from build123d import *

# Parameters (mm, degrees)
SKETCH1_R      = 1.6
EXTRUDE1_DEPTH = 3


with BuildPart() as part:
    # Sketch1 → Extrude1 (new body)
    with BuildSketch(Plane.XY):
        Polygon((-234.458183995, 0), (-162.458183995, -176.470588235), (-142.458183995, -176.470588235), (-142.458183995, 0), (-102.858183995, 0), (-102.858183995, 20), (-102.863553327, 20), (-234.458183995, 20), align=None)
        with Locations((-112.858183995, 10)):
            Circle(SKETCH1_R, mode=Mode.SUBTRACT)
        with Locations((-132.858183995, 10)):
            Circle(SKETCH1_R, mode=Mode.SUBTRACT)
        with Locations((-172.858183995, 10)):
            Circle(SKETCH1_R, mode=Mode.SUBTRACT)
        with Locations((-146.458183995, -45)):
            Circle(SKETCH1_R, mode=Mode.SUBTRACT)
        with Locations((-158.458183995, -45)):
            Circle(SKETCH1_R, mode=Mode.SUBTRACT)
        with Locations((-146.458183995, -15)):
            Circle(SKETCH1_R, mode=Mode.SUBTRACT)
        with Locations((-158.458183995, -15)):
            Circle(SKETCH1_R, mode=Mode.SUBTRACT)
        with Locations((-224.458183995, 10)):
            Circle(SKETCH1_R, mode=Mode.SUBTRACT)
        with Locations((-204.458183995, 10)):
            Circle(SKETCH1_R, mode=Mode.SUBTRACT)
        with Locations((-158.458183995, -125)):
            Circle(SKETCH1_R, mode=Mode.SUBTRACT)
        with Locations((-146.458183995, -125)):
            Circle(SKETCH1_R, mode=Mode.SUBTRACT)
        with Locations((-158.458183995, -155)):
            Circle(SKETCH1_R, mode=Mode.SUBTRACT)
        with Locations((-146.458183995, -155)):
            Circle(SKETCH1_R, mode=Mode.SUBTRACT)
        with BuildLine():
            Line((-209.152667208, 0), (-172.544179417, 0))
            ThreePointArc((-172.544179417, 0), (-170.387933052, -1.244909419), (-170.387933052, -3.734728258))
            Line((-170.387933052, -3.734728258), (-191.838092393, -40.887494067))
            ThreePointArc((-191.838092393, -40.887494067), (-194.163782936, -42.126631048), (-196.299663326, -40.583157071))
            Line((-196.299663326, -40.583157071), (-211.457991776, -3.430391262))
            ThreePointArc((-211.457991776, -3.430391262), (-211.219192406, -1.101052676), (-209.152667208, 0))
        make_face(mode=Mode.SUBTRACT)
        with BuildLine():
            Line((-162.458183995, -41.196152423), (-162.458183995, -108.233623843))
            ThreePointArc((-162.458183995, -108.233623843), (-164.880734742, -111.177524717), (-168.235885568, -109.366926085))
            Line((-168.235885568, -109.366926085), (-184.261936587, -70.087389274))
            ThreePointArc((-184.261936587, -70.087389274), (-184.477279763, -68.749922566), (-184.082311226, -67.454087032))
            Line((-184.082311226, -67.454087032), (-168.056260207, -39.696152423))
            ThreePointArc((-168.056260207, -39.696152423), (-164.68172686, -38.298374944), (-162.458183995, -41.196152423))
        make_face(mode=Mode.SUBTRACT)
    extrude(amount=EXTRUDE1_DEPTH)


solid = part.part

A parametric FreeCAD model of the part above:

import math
import FreeCAD as App
import Part
import Sketcher
from FreeCAD import Vector
Q = App.Units.Quantity

doc = App.newDocument("Part")
params = doc.addObject("Spreadsheet::Sheet", "Params")
for row, (alias, value) in enumerate([
    ("sketch1_radius", "3 mm"),
    ("sketch1_diameter", "3.2 mm"),
    ("sketch1_width", "20 mm"),
    ("sketch1_width2", "39.6 mm"),
    ("sketch1_width3", "131.6 mm"),
    ("pad1_length", "3 mm"),
], start=1):
    params.set(f"A{row}", alias)
    params.set(f"B{row}", "=" + value)
    params.setAlias(f"B{row}", alias)

body = doc.addObject("PartDesign::Body", "Body")

sketch1 = doc.addObject("Sketcher::SketchObject", "Sketch")
body.addObject(sketch1)
sketch1.AttachmentSupport = (doc.XY_Plane, [""])
sketch1.MapMode = "FlatFace"
sketch1.addGeometry([
    Part.LineSegment(Vector(-234.458184, 0, 0), Vector(-162.458184, -176.470588, 0)),
    Part.LineSegment(Vector(-162.458184, -176.470588, 0), Vector(-142.458184, -176.470588, 0)),
    Part.LineSegment(Vector(-142.458184, -176.470588, 0), Vector(-142.458184, 0, 0)),
    Part.LineSegment(Vector(-142.458184, 0, 0), Vector(-102.858184, 0, 0)),
    Part.LineSegment(Vector(-102.858184, 0, 0), Vector(-102.858184, 20, 0)),
    Part.LineSegment(Vector(-102.858184, 20, 0), Vector(-234.458184, 20, 0)),
    Part.LineSegment(Vector(-234.458184, 20, 0), Vector(-234.458184, 0, 0)),
    Part.ArcOfCircle(Part.Circle(Vector(-165.458184, -41.196152, 0), Vector(0, 0, 1), 3), math.radians(0), math.radians(150)),
    Part.LineSegment(Vector(-162.458184, -41.196152, 0), Vector(-162.458184, -108.233624, 0)),
    Part.ArcOfCircle(Part.Circle(Vector(-165.458184, -108.233624, 0), Vector(0, 0, 1), 3), math.radians(-157.80454), math.radians(0)),
    Part.LineSegment(Vector(-168.235886, -109.366926, 0), Vector(-184.261937, -70.087389, 0)),
    Part.ArcOfCircle(Part.Circle(Vector(-181.484235, -68.954087, 0), Vector(0, 0, 1), 3), math.radians(150), math.radians(202.195459)),
    Part.LineSegment(Vector(-184.082311, -67.454087, 0), Vector(-168.05626, -39.696152, 0)),
    Part.Circle(Vector(-158.458184, -155, 0), Vector(0, 0, 1), 1.6),
    Part.Circle(Vector(-146.458184, -155, 0), Vector(0, 0, 1), 1.6),
    Part.Circle(Vector(-158.458184, -125, 0), Vector(0, 0, 1), 1.6),
    Part.Circle(Vector(-146.458184, -125, 0), Vector(0, 0, 1), 1.6),
    Part.Circle(Vector(-224.458184, 10, 0), Vector(0, 0, 1), 1.6),
    Part.Circle(Vector(-204.458184, 10, 0), Vector(0, 0, 1), 1.6),
    Part.ArcOfCircle(Part.Circle(Vector(-209.152667, -2.489819, 0), Vector(0, 0, 1), 2.489819), math.radians(90), math.radians(202.19546)),
    Part.LineSegment(Vector(-209.152667, 0, 0), Vector(-172.544179, 0, 0)),
    Part.ArcOfCircle(Part.Circle(Vector(-172.544179, -2.489819, 0), Vector(0, 0, 1), 2.489819), math.radians(-30), math.radians(90)),
    Part.LineSegment(Vector(-170.387933, -3.734728, 0), Vector(-191.838092, -40.887494, 0)),
    Part.ArcOfCircle(Part.Circle(Vector(-193.994339, -39.642585, 0), Vector(0, 0, 1), 2.489819), math.radians(-157.80454), math.radians(-30)),
    Part.LineSegment(Vector(-196.299663, -40.583157, 0), Vector(-211.457992, -3.430391, 0)),
    Part.Circle(Vector(-172.858184, 10, 0), Vector(0, 0, 1), 1.6),
    Part.Circle(Vector(-158.458184, -45, 0), Vector(0, 0, 1), 1.6),
    Part.Circle(Vector(-146.458184, -45, 0), Vector(0, 0, 1), 1.6),
    Part.Circle(Vector(-158.458184, -15, 0), Vector(0, 0, 1), 1.6),
    Part.Circle(Vector(-146.458184, -15, 0), Vector(0, 0, 1), 1.6),
    Part.Circle(Vector(-132.858184, 10, 0), Vector(0, 0, 1), 1.6),
    Part.Circle(Vector(-112.858184, 10, 0), Vector(0, 0, 1), 1.6),
], False)
sketch1.addConstraint([
    Sketcher.Constraint("Coincident", 0, 2, 1, 1),
    Sketcher.Constraint("Coincident", 1, 2, 2, 1),
    Sketcher.Constraint("Coincident", 2, 2, 3, 1),
    Sketcher.Constraint("Coincident", 3, 2, 4, 1),
    Sketcher.Constraint("Coincident", 4, 2, 5, 1),
    Sketcher.Constraint("Coincident", 5, 2, 6, 1),
    Sketcher.Constraint("Coincident", 6, 2, 0, 1),
    Sketcher.Constraint("Tangent", 7, 1, 8, 1),
    Sketcher.Constraint("Tangent", 8, 2, 9, 2),
    Sketcher.Constraint("Tangent", 9, 1, 10, 1),
    Sketcher.Constraint("Tangent", 10, 2, 11, 2),
    Sketcher.Constraint("Tangent", 11, 1, 12, 1),
    Sketcher.Constraint("Tangent", 12, 2, 7, 2),
    Sketcher.Constraint("Tangent", 19, 1, 20, 1),
    Sketcher.Constraint("Tangent", 20, 2, 21, 2),
    Sketcher.Constraint("Tangent", 21, 1, 22, 1),
    Sketcher.Constraint("Tangent", 22, 2, 23, 2),
    Sketcher.Constraint("Tangent", 23, 1, 24, 1),
    Sketcher.Constraint("Tangent", 24, 2, 19, 2),
    Sketcher.Constraint("Horizontal", 1),
    Sketcher.Constraint("Vertical", 2),
    Sketcher.Constraint("Horizontal", 3),
    Sketcher.Constraint("Vertical", 4),
    Sketcher.Constraint("Horizontal", 5),
    Sketcher.Constraint("Vertical", 6),
    Sketcher.Constraint("Vertical", 8),
    Sketcher.Constraint("Horizontal", 20),
    Sketcher.Constraint("Equal", 7, 9),
    Sketcher.Constraint("Equal", 9, 11),
    Sketcher.Constraint("Equal", 13, 14),
    Sketcher.Constraint("Equal", 14, 15),
    Sketcher.Constraint("Equal", 15, 16),
    Sketcher.Constraint("Equal", 16, 17),
    Sketcher.Constraint("Equal", 17, 18),
    Sketcher.Constraint("Equal", 19, 21),
    Sketcher.Constraint("Equal", 21, 23),
    Sketcher.Constraint("Equal", 18, 25),
    Sketcher.Constraint("Equal", 25, 26),
    Sketcher.Constraint("Equal", 26, 27),
    Sketcher.Constraint("Equal", 27, 28),
    Sketcher.Constraint("Equal", 28, 29),
    Sketcher.Constraint("Equal", 29, 30),
    Sketcher.Constraint("Equal", 30, 31),
    Sketcher.Constraint("PointOnObject", 2, 2, -1),
    Sketcher.Constraint("PointOnObject", 6, 2, -1),
    Sketcher.Constraint("PointOnObject", 19, 1, -1),
    Sketcher.Constraint("Parallel", 0, 10),
    Sketcher.Constraint("Parallel", 12, 22),
    Sketcher.Constraint("Parallel", 10, 24),
    Sketcher.Constraint("Horizontal", 13, 3, 14, 3),
    Sketcher.Constraint("Horizontal", 15, 3, 16, 3),
    Sketcher.Constraint("Horizontal", 17, 3, 18, 3),
    Sketcher.Constraint("Horizontal", 18, 3, 25, 3),
    Sketcher.Constraint("Horizontal", 26, 3, 27, 3),
    Sketcher.Constraint("Horizontal", 28, 3, 29, 3),
    Sketcher.Constraint("Horizontal", 25, 3, 30, 3),
    Sketcher.Constraint("Horizontal", 30, 3, 31, 3),
    Sketcher.Constraint("Vertical", 13, 3, 15, 3),
    Sketcher.Constraint("Vertical", 14, 3, 16, 3),
    Sketcher.Constraint("Vertical", 15, 3, 26, 3),
    Sketcher.Constraint("Vertical", 16, 3, 27, 3),
    Sketcher.Constraint("Vertical", 26, 3, 28, 3),
    Sketcher.Constraint("Vertical", 27, 3, 29, 3),
    Sketcher.Constraint("Vertical", 0, 2, 7, 1),
    Sketcher.Constraint("Equal", 1, 4),
    Sketcher.Constraint("Radius", 7, 3.0),
    Sketcher.Constraint("Diameter", 13, 3.2),
    Sketcher.Constraint("DistanceX", 1, 1, 1, 2, 20.0),
    Sketcher.Constraint("Angle", 12, Q("60 deg")),
    Sketcher.Constraint("DistanceX", 3, 1, 3, 2, 39.6),
    Sketcher.Constraint("DistanceX", 5, 2, 5, 1, 131.6),
    Sketcher.Constraint("DistanceY", 13, 3, -1, 1, 155.0),
    Sketcher.Constraint("DistanceY", 15, 3, -1, 1, 125.0),
    Sketcher.Constraint("DistanceY", -1, 1, 17, 3, 10.0),
    Sketcher.Constraint("DistanceY", 26, 3, -1, 1, 45.0),
    Sketcher.Constraint("DistanceY", 28, 3, -1, 1, 15.0),
    Sketcher.Constraint("DistanceX", 9, 3, 13, 3, 7.0),
    Sketcher.Constraint("DistanceX", 13, 3, 14, 3, 12.0),
    Sketcher.Constraint("DistanceX", 17, 3, 7, 3, 59.0),
    Sketcher.Constraint("DistanceX", 17, 3, 18, 3, 20.0),
    Sketcher.Constraint("DistanceX", 25, 3, 30, 3, 40.0),
    Sketcher.Constraint("DistanceX", 30, 3, 31, 3, 20.0),
    Sketcher.Constraint("DistanceX", 31, 3, 3, 2, 10.0),
    Sketcher.Constraint("Radius", 19, 2.489819),
    Sketcher.Constraint("DistanceY", 2, 1, 2, 2, 176.470588),
    Sketcher.Constraint("DistanceY", 8, 2, 8, 1, 67.037471),
    Sketcher.Constraint("Distance", 22, 42.900319),
    Sketcher.Constraint("DistanceX", 21, 3, -1, 1, 172.544179),
    Sketcher.Constraint("DistanceY", 10, 2, -1, 1, 70.087389),
    Sketcher.Constraint("DistanceX", 11, 1, -1, 1, 184.082311),
])
sketch1.setExpression("Constraints[65]", "Params.sketch1_radius")
sketch1.setExpression("Constraints[66]", "Params.sketch1_diameter")
sketch1.setExpression("Constraints[67]", "Params.sketch1_width")
sketch1.setExpression("Constraints[69]", "Params.sketch1_width2")
sketch1.setExpression("Constraints[70]", "Params.sketch1_width3")
pad1 = doc.addObject("PartDesign::Pad", "Pad")
body.addObject(pad1)
pad1.Profile = sketch1
pad1.setExpression("Length", "Params.pad1_length")

doc.recompute()
